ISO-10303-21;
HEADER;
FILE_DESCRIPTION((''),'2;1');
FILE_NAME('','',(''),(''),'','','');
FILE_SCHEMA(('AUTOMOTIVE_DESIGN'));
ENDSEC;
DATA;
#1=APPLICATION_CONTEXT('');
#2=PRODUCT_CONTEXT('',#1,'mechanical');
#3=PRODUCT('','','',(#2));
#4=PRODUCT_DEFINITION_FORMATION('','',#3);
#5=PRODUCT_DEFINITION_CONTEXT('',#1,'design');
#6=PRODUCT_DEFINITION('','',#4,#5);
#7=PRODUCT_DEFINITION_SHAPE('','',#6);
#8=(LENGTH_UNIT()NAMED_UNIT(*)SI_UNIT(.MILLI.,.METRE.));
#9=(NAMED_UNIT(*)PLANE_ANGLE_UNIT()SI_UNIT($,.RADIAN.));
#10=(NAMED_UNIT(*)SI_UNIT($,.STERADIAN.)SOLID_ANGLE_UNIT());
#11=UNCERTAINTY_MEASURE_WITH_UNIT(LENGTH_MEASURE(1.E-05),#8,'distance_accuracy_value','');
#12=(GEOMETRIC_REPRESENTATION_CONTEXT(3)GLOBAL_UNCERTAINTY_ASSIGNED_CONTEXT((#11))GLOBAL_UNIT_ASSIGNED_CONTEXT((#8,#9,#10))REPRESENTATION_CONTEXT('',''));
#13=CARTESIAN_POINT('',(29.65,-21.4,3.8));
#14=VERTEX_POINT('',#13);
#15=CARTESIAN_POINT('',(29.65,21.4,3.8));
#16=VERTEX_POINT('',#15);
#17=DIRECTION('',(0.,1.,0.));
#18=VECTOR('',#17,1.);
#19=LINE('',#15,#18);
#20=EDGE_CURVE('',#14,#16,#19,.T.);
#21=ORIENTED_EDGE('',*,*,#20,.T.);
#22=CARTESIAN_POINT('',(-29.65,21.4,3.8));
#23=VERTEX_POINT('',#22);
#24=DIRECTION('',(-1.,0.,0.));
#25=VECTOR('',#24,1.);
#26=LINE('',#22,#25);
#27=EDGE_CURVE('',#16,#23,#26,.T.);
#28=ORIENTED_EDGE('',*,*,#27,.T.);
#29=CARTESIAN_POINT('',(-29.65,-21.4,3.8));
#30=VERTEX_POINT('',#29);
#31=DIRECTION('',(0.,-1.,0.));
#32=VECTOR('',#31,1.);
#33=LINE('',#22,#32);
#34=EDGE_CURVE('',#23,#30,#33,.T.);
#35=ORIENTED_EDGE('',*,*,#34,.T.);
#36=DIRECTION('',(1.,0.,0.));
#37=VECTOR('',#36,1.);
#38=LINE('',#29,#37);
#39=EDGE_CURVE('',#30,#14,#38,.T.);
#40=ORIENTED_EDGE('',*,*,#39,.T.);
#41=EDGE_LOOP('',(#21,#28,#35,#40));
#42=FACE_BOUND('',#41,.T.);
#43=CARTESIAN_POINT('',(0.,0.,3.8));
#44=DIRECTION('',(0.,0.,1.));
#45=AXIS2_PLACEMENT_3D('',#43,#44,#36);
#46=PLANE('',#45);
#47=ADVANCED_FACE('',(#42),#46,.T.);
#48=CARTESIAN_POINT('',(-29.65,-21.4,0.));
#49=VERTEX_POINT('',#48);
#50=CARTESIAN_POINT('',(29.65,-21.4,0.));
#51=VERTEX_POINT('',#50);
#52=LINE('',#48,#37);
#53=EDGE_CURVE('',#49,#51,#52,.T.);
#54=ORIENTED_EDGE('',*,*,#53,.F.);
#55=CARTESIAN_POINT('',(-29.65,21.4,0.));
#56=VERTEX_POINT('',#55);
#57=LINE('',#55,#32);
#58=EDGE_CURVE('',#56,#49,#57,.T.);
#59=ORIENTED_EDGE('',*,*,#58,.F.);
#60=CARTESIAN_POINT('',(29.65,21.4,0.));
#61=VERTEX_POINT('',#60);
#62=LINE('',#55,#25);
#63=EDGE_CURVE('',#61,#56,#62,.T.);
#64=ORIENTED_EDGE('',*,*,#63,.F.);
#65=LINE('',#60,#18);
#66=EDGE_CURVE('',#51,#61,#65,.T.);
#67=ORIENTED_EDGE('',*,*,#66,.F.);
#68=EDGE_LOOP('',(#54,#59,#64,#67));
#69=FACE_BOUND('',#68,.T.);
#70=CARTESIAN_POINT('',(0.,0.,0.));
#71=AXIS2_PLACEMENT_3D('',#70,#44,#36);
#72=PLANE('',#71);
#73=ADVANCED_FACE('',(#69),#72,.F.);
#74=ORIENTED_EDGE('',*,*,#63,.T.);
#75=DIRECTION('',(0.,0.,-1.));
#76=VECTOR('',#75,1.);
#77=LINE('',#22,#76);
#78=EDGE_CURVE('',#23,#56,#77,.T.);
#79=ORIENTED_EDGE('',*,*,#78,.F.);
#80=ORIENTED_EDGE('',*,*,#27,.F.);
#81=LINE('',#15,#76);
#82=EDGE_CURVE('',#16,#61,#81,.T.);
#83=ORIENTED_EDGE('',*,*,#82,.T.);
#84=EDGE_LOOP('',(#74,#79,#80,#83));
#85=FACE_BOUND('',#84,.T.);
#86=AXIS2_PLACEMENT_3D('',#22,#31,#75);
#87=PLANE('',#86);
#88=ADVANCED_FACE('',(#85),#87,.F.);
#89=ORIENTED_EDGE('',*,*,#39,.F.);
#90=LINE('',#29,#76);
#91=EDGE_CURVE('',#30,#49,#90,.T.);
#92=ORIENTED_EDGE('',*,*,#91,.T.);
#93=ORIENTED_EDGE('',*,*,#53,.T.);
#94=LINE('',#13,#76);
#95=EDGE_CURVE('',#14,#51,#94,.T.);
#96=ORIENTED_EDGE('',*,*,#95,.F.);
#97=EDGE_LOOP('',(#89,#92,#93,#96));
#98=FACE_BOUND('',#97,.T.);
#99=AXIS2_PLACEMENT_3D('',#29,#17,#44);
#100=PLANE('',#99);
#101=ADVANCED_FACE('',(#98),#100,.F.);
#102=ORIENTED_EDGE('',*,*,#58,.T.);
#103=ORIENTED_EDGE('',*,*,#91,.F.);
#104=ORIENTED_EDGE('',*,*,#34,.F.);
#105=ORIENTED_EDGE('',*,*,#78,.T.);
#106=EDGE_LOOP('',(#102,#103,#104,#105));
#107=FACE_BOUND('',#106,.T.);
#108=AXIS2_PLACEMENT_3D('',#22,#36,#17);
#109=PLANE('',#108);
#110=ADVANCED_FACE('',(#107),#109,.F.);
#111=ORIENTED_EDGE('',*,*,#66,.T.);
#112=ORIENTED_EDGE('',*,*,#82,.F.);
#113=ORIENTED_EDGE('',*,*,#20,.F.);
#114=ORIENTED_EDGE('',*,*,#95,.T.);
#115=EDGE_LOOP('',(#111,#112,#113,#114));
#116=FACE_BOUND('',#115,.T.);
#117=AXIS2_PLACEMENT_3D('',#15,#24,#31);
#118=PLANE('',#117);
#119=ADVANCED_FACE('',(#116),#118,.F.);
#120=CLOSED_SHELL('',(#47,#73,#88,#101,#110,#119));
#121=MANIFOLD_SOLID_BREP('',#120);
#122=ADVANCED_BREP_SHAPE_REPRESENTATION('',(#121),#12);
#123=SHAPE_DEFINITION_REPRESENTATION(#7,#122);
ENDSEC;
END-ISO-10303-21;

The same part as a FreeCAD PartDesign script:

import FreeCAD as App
import Part
import Sketcher

V = App.Vector
Q = App.Units.Quantity


def add_polygon(sketch, points):
    """Adds a closed chain of lines whose ends are joined by coincident constraints."""
    first, n = sketch.GeometryCount, len(points)
    for a, b in zip(points, points[1:] + points[:1]):
        sketch.addGeometry(Part.LineSegment(App.Vector(*a, 0), App.Vector(*b, 0)), False)
    for i in range(n):
        sketch.addConstraint(Sketcher.Constraint("Coincident", first + i, 2, first + (i + 1) % n, 1))

doc = App.newDocument("Part")
body = doc.addObject("PartDesign::Body", "Body")

sketch1 = body.newObject("Sketcher::SketchObject", "Sketch")
sketch1.AttachmentSupport = (doc.getObject("XY_Plane"), [""])
sketch1.MapMode = "FlatFace"
add_polygon(sketch1, [(-29.65, 21.4), (-29.65, -21.4), (29.65, -21.4), (29.65, 21.4)])
sketch1.addConstraint([
    Sketcher.Constraint("Vertical", 0),
    Sketcher.Constraint("Horizontal", 1),
    Sketcher.Constraint("Vertical", 2),
    Sketcher.Constraint("Horizontal", 3),
    Sketcher.Constraint("Symmetric", 0, 2, 2, 2, -1, 1),
    Sketcher.Constraint("DistanceX", 1, 1, 1, 2, Q("59.3 mm")),
    Sketcher.Constraint("DistanceY", 0, 2, 0, 1, Q("42.8 mm")),
])
pad1 = body.newObject("PartDesign::Pad", "Pad")
pad1.Profile = sketch1
pad1.Length = 3.8

doc.recompute()
